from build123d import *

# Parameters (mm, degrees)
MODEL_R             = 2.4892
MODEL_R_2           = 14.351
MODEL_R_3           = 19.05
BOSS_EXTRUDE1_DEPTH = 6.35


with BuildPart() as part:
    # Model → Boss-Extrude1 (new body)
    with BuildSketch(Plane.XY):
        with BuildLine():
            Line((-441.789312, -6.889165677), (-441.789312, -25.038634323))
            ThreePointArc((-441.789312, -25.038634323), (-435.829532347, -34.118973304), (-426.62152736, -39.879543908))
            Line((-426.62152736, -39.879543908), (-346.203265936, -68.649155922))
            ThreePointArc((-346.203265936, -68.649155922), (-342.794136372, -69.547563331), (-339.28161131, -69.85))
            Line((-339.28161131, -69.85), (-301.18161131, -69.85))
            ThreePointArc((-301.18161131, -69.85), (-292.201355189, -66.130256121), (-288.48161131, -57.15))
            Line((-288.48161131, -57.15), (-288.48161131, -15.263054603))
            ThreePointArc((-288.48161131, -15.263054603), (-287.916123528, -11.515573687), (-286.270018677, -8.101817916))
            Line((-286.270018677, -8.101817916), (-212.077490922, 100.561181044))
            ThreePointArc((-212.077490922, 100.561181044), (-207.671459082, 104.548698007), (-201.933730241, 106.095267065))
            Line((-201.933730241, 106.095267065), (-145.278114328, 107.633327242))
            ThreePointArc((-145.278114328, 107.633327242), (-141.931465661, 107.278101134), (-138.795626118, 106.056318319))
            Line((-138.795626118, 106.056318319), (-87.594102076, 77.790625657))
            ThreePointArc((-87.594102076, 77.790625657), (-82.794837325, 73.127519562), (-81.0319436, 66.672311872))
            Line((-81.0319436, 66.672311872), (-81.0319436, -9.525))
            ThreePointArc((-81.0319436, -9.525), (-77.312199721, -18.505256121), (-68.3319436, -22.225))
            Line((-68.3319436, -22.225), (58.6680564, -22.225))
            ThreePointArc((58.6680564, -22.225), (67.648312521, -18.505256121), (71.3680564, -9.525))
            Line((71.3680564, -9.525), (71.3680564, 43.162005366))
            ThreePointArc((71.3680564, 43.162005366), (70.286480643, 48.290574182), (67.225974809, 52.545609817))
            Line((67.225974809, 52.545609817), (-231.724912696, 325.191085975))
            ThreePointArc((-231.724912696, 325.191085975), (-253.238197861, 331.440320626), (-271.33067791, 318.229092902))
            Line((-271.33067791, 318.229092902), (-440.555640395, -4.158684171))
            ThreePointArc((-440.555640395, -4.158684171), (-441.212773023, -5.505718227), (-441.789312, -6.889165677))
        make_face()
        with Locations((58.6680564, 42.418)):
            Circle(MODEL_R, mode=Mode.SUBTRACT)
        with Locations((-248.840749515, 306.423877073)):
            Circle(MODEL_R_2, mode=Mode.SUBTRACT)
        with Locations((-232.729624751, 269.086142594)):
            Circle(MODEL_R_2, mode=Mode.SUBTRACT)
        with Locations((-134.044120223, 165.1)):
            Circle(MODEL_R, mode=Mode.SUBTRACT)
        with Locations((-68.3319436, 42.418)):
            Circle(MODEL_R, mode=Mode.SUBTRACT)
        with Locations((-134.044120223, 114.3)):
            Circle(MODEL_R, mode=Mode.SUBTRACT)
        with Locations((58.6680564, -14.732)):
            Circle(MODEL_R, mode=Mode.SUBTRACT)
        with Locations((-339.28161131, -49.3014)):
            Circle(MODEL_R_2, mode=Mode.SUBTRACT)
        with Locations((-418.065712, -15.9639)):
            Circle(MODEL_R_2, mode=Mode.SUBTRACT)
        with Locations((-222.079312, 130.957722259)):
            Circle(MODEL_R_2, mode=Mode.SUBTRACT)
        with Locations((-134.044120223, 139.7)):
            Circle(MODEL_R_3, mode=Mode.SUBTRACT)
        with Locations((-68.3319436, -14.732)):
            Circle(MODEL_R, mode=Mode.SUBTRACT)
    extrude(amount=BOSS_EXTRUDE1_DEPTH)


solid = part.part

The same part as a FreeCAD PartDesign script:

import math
import FreeCAD as App
import Part
import Sketcher
from FreeCAD import Vector
Q = App.Units.Quantity

doc = App.newDocument("Part")
body = doc.addObject("PartDesign::Body", "Body")

sketch1 = body.newObject("Sketcher::SketchObject", "Sketch")
sketch1.AttachmentSupport = (doc.getObject("XY_Plane"), [""])
sketch1.MapMode = "FlatFace"
sketch1.addGeometry([
    Part.LineSegment(Vector(-441.789312, -6.889166, 0), Vector(-441.789312, -25.038634, 0)),
    Part.ArcOfCircle(Part.Circle(Vector(-418.065712, -15.9639, 0), Vector(0, 0, 1), 25.4), math.radians(-159.067184), math.radians(-109.684656)),
    Part.LineSegment(Vector(-426.621527, -39.879544, 0), Vector(-346.203266, -68.649156, 0)),
    Part.ArcOfCircle(Part.Circle(Vector(-339.281611, -49.3014, 0), Vector(0, 0, 1), 20.5486), math.radians(-109.684656), math.radians(-90)),
    Part.LineSegment(Vector(-339.281611, -69.85, 0), Vector(-301.181611, -69.85, 0)),
    Part.ArcOfCircle(Part.Circle(Vector(-301.181611, -57.15, 0), Vector(0, 0, 1), 12.7), math.radians(-90), math.radians(0)),
    Part.LineSegment(Vector(-288.481611, -57.15, 0), Vector(-288.481611, -15.263055, 0)),
    Part.ArcOfCircle(Part.Circle(Vector(-275.781611, -15.263055, 0), Vector(0, 0, 1), 12.7), math.radians(145.675662), math.radians(180)),
    Part.LineSegment(Vector(-286.270019, -8.101818, 0), Vector(-212.077491, 100.561181, 0)),
    Part.ArcOfCircle(Part.Circle(Vector(-201.589084, 93.399944, 0), Vector(0, 0, 1), 12.7), math.radians(91.555057), math.radians(145.675662)),
    Part.LineSegment(Vector(-201.93373, 106.095267, 0), Vector(-145.278114, 107.633327, 0)),
    Part.ArcOfCircle(Part.Circle(Vector(-144.933468, 94.938005, 0), Vector(0, 0, 1), 12.7), math.radians(61.0992), math.radians(91.555057)),
    Part.LineSegment(Vector(-138.795626, 106.056318, 0), Vector(-87.594102, 77.790626, 0)),
    Part.ArcOfCircle(Part.Circle(Vector(-93.731944, 66.672312, 0), Vector(0, 0, 1), 12.7), math.radians(0), math.radians(61.0992)),
    Part.LineSegment(Vector(-81.031944, 66.672312, 0), Vector(-81.031944, -9.525, 0)),
    Part.ArcOfCircle(Part.Circle(Vector(-68.331944, -9.525, 0), Vector(0, 0, 1), 12.7), math.radians(180), math.radians(270)),
    Part.LineSegment(Vector(-68.331944, -22.225, 0), Vector(58.668056, -22.225, 0)),
    Part.ArcOfCircle(Part.Circle(Vector(58.668056, -9.525, 0), Vector(0, 0, 1), 12.7), math.radians(-90), math.radians(0)),
    Part.LineSegment(Vector(71.368056, -9.525, 0), Vector(71.368056, 43.162005, 0)),
    Part.ArcOfCircle(Part.Circle(Vector(58.668056, 43.162005, 0), Vector(0, 0, 1), 12.7), math.radians(0), math.radians(47.634947)),
    Part.LineSegment(Vector(67.225975, 52.54561, 0), Vector(-231.724913, 325.191086, 0)),
    Part.ArcOfCircle(Part.Circle(Vector(-248.84075, 306.423877, 0), Vector(0, 0, 1), 25.4), math.radians(47.634947), math.radians(152.304515)),
    Part.LineSegment(Vector(-271.330678, 318.229093, 0), Vector(-440.55564, -4.158684, 0)),
    Part.ArcOfCircle(Part.Circle(Vector(-418.065712, -15.9639, 0), Vector(0, 0, 1), 25.4), math.radians(152.304515), math.radians(159.067184)),
    Part.Circle(Vector(-418.065712, -15.9639, 0), Vector(0, 0, 1), 14.351),
    Part.Circle(Vector(-339.281611, -49.3014, 0), Vector(0, 0, 1), 14.351),
    Part.Circle(Vector(-68.331944, -14.732, 0), Vector(0, 0, 1), 2.4892),
    Part.Circle(Vector(58.668056, -14.732, 0), Vector(0, 0, 1), 2.4892),
    Part.Circle(Vector(-68.331944, 42.418, 0), Vector(0, 0, 1), 2.4892),
    Part.Circle(Vector(-134.04412, 114.3, 0), Vector(0, 0, 1), 2.4892),
    Part.Circle(Vector(58.668056, 42.418, 0), Vector(0, 0, 1), 2.4892),
    Part.Circle(Vector(-222.079312, 130.957722, 0), Vector(0, 0, 1), 14.351),
    Part.Circle(Vector(-232.729625, 269.086143, 0), Vector(0, 0, 1), 14.351),
    Part.Circle(Vector(-248.84075, 306.423877, 0), Vector(0, 0, 1), 14.351),
    Part.Circle(Vector(-134.04412, 139.7, 0), Vector(0, 0, 1), 19.05),
    Part.Circle(Vector(-134.04412, 165.1, 0), Vector(0, 0, 1), 2.4892),
], False)
sketch1.addConstraint([
    Sketcher.Constraint("Coincident", 0, 2, 1, 1),
    Sketcher.Constraint("Tangent", 1, 2, 2, 1),
    Sketcher.Constraint("Tangent", 2, 2, 3, 1),
    Sketcher.Constraint("Tangent", 3, 2, 4, 1),
    Sketcher.Constraint("Tangent", 4, 2, 5, 1),
    Sketcher.Constraint("Tangent", 5, 2, 6, 1),
    Sketcher.Constraint("Tangent", 6, 2, 7, 2),
    Sketcher.Constraint("Tangent", 7, 1, 8, 1),
    Sketcher.Constraint("Tangent", 8, 2, 9, 2),
    Sketcher.Constraint("Tangent", 9, 1, 10, 1),
    Sketcher.Constraint("Tangent", 10, 2, 11, 2),
    Sketcher.Constraint("Tangent", 11, 1, 12, 1),
    Sketcher.Constraint("Tangent", 12, 2, 13, 2),
    Sketcher.Constraint("Tangent", 13, 1, 14, 1),
    Sketcher.Constraint("Tangent", 14, 2, 15, 1),
    Sketcher.Constraint("Tangent", 15, 2, 16, 1),
    Sketcher.Constraint("Tangent", 16, 2, 17, 1),
    Sketcher.Constraint("Tangent", 17, 2, 18, 1),
    Sketcher.Constraint("Tangent", 18, 2, 19, 1),
    Sketcher.Constraint("Tangent", 19, 2, 20, 1),
    Sketcher.Constraint("Tangent", 20, 2, 21, 1),
    Sketcher.Constraint("Tangent", 21, 2, 22, 1),
    Sketcher.Constraint("Tangent", 22, 2, 23, 1),
    Sketcher.Constraint("Coincident", 23, 2, 0, 1),
    Sketcher.Constraint("Vertical", 0),
    Sketcher.Constraint("Horizontal", 4),
    Sketcher.Constraint("Vertical", 6),
    Sketcher.Constraint("Vertical", 14),
    Sketcher.Constraint("Horizontal", 16),
    Sketcher.Constraint("Vertical", 18),
    Sketcher.Constraint("Coincident", 23, 3, 1, 3),
    Sketcher.Constraint("Coincident", 24, 3, 1, 3),
    Sketcher.Constraint("Coincident", 25, 3, 3, 3),
    Sketcher.Constraint("Coincident", 33, 3, 21, 3),
    Sketcher.Constraint("Equal", 5, 7),
    Sketcher.Constraint("Equal", 7, 9),
    Sketcher.Constraint("Equal", 9, 11),
    Sketcher.Constraint("Equal", 11, 13),
    Sketcher.Constraint("Equal", 13, 15),
    Sketcher.Constraint("Equal", 15, 17),
    Sketcher.Constraint("Equal", 17, 19),
    Sketcher.Constraint("Equal", 1, 21),
    Sketcher.Constraint("Equal", 21, 23),
    Sketcher.Constraint("Equal", 24, 25),
    Sketcher.Constraint("Equal", 26, 27),
    Sketcher.Constraint("Equal", 27, 28),
    Sketcher.Constraint("Equal", 28, 29),
    Sketcher.Constraint("Equal", 29, 30),
    Sketcher.Constraint("Equal", 25, 31),
    Sketcher.Constraint("Equal", 31, 32),
    Sketcher.Constraint("Equal", 32, 33),
    Sketcher.Constraint("Equal", 30, 35),
    Sketcher.Constraint("Horizontal", 26, 3, 27, 3),
    Sketcher.Constraint("Horizontal", 28, 3, 30, 3),
    Sketcher.Constraint("Vertical", 15, 3, 26, 3),
    Sketcher.Constraint("Vertical", 19, 3, 27, 3),
    Sketcher.Constraint("Vertical", 26, 3, 28, 3),
    Sketcher.Constraint("Vertical", 27, 3, 30, 3),
    Sketcher.Constraint("Vertical", 29, 3, 34, 3),
    Sketcher.Constraint("Vertical", 34, 3, 35, 3),
    Sketcher.Constraint("Radius", 1, Q("1 in")),
    Sketcher.Constraint("Diameter", 34, Q("1.5 in")),
    Sketcher.Constraint("Radius", 5, Q("0.5 in")),
    Sketcher.Constraint("Diameter", 24, Q("1.13 in")),
    Sketcher.Constraint("DistanceX", 16, 1, 16, 2, Q("5 in")),
    Sketcher.Constraint("Diameter", 26, Q("0.196 in")),
    Sketcher.Constraint("DistanceX", 4, 1, 4, 2, Q("1.5 in")),
    Sketcher.Constraint("Radius", 3, Q("0.809 in")),
    Sketcher.Constraint("DistanceY", 29, 3, 34, 3, Q("1 in")),
    Sketcher.Constraint("DistanceY", 34, 3, 35, 3, Q("1 in")),
    Sketcher.Constraint("DistanceY", -1, 1, 29, 3, Q("4.5 in")),
    Sketcher.Constraint("DistanceY", 5, 3, -1, 1, Q("2.25 in")),
    Sketcher.Constraint("DistanceY", 26, 3, -1, 1, Q("0.58 in")),
    Sketcher.Constraint("DistanceY", -1, 1, 28, 3, Q("1.67 in")),
    Sketcher.Constraint("DistanceY", 15, 3, -1, 1, Q("0.375 in")),
    Sketcher.Constraint("DistanceY", 3, 3, 1, 3, Q("1.3125 in")),
    Sketcher.Constraint("DistanceX", 0, 2, 23, 3, Q("0.934 in")),
    Sketcher.Constraint("DistanceX", 33, 3, 31, 3, Q("1.0535999 in")),
    Sketcher.Constraint("DistanceY", 14, 2, 14, 1, Q("76.197312 mm")),
    Sketcher.Constraint("DistanceX", 1, 3, 3, 3, Q("78.784101 mm")),
    Sketcher.Constraint("DistanceY", 7, 3, 9, 3, Q("108.662999 mm")),
    Sketcher.Constraint("DistanceY", 19, 3, 11, 3, Q("51.775999 mm")),
    Sketcher.Constraint("DistanceX", 7, 3, 31, 3, Q("53.702299 mm")),
    Sketcher.Constraint("DistanceY", 9, 3, 32, 3, Q("175.686198 mm")),
    Sketcher.Constraint("DistanceY", 2, 2, 7, 3, Q("53.386101 mm")),
    Sketcher.Constraint("DistanceX", 20, 2, 31, 3, Q("9.645601 mm")),
    Sketcher.Constraint("Distance", 10, Q("56.676489 mm")),
    Sketcher.Constraint("Distance", 12, Q("58.485429 mm")),
    Sketcher.Constraint("Distance", 20, Q("404.60745 mm")),
    Sketcher.Constraint("Distance", 22, Q("364.102962 mm")),
    Sketcher.Constraint("DistanceX", 1, 3, -1, 1, Q("418.065712 mm")),
    Sketcher.Constraint("DistanceX", 29, 3, -1, 1, Q("134.04412 mm")),
    Sketcher.Constraint("DistanceY", 13, 3, 31, 3, Q("64.28541 mm")),
    Sketcher.Constraint("DistanceX", 32, 3, 9, 3, Q("31.140541 mm")),
])
pad1 = body.newObject("PartDesign::Pad", "Pad")
pad1.Profile = sketch1
pad1.Length = Q("0.25 in")

doc.recompute()
